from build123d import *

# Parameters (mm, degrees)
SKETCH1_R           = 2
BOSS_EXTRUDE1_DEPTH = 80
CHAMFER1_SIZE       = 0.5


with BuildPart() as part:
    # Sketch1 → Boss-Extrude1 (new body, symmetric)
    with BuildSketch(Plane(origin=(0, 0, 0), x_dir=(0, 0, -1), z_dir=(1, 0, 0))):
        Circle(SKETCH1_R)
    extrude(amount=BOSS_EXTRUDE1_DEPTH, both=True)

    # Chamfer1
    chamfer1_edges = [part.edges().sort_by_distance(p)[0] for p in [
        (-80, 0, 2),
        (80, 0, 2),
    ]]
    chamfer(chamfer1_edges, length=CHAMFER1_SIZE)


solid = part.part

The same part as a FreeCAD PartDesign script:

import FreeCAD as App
import Part
import Sketcher
Q = App.Units.Quantity


def edges_at(feature, points):
    """Names of the edges that pass closest to the given points."""
    edges = feature.Shape.Edges
    near = lambda p: min(range(len(edges)), key=lambda i: edges[i].distToShape(Part.Vertex(*p))[0])
    return sorted({f"Edge{near(p) + 1}" for p in points})

doc = App.newDocument("Part")
body = doc.addObject("PartDesign::Body", "Body")

sketch1 = body.newObject("Sketcher::SketchObject", "Sketch")
sketch1.AttachmentSupport = (doc.getObject("YZ_Plane"), [""])
sketch1.MapMode = "FlatFace"
sketch1.addGeometry(Part.Circle(App.Vector(0, 0, 0), App.Vector(0, 0, 1), 2), False)
sketch1.addConstraint([
    Sketcher.Constraint("Coincident", 0, 3, -1, 1),
    Sketcher.Constraint("Diameter", 0, Q("4 mm")),
])
pad1 = body.newObject("PartDesign::Pad", "Pad")
pad1.Profile = sketch1
pad1.Length = 160
pad1.Midplane = True
doc.recompute()

chamfer = body.newObject("PartDesign::Chamfer", "Chamfer")
chamfer.Base = (pad1, edges_at(pad1, [(-80, 0, 2), (80, 0, 2)]))
chamfer.Size = 0.5

doc.recompute()
